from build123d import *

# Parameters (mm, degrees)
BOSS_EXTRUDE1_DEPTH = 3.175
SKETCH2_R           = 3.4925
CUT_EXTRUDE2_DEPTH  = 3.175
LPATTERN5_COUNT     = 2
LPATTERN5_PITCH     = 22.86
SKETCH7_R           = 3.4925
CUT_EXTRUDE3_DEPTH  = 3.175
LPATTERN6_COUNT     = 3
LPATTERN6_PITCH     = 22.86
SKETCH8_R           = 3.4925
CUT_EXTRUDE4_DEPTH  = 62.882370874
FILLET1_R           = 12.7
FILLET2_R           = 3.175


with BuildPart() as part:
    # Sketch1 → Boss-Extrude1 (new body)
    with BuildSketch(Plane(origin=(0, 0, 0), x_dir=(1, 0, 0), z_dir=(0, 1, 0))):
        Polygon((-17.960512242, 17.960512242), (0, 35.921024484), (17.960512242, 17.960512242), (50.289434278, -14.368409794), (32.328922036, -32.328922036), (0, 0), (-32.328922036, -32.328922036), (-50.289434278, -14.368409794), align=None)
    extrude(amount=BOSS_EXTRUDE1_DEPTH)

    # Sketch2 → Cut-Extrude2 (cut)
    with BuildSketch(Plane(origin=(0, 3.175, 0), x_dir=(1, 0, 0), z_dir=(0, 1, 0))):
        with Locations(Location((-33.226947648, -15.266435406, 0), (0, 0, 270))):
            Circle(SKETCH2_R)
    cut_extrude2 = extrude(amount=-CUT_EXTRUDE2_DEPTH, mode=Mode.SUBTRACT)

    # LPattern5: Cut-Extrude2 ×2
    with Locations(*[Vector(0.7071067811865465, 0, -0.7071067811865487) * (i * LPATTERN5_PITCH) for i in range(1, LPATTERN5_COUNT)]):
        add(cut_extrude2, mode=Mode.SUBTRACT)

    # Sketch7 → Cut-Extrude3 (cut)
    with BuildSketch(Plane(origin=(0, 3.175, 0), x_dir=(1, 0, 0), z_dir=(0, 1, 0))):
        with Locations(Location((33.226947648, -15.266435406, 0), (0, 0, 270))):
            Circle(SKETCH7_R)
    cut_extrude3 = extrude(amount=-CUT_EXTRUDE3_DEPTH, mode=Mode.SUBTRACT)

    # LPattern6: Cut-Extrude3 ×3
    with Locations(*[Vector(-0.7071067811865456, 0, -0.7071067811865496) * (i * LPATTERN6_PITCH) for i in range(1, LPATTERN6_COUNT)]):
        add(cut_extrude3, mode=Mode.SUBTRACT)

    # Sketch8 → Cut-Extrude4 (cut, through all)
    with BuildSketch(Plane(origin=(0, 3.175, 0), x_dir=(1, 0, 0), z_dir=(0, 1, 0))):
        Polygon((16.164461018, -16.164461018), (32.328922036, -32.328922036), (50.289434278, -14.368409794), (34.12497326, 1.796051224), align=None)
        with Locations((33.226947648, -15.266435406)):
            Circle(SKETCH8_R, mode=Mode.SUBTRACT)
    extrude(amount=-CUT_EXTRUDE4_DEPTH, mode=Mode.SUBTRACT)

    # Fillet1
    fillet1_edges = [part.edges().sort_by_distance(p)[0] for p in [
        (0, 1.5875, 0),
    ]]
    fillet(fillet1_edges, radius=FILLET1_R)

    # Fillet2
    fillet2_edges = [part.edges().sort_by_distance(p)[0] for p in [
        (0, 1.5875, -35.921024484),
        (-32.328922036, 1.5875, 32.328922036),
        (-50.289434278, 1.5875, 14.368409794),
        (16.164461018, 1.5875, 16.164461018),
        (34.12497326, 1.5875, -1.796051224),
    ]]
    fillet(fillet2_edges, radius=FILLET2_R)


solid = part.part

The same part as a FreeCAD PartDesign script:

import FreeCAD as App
import Part
import Sketcher

V = App.Vector
Q = App.Units.Quantity


def edges_at(feature, points):
    """Names of the edges that pass closest to the given points."""
    edges = feature.Shape.Edges
    near = lambda p: min(range(len(edges)), key=lambda i: edges[i].distToShape(Part.Vertex(*p))[0])
    return sorted({f"Edge{near(p) + 1}" for p in points})


def add_polygon(sketch, points):
    """Adds a closed chain of lines whose ends are joined by coincident constraints."""
    first, n = sketch.GeometryCount, len(points)
    for a, b in zip(points, points[1:] + points[:1]):
        sketch.addGeometry(Part.LineSegment(App.Vector(*a, 0), App.Vector(*b, 0)), False)
    for i in range(n):
        sketch.addConstraint(Sketcher.Constraint("Coincident", first + i, 2, first + (i + 1) % n, 1))

doc = App.newDocument("Part")
body = doc.addObject("PartDesign::Body", "Body")

# Sketch on XZ plane
sketch1 = body.newObject("Sketcher::SketchObject", "Sketch")
sketch1.AttachmentSupport = (doc.getObject("XZ_Plane"), [""])
sketch1.MapMode = "FlatFace"
add_polygon(sketch1, [(0, -36), (-50, 14), (-32, 32), (0, 0), (32, 32), (50, 14)])  # lines 0-5
sketch1.addConstraint([
    Sketcher.Constraint("Coincident", 2, 2, -1, 1),
    Sketcher.Constraint("Symmetric", 1, 2, 3, 2, -2),
    Sketcher.Constraint("Symmetric", 0, 2, 4, 2, -2),
    Sketcher.Constraint("PointOnObject", 5, 2, -2),
    Sketcher.Constraint("Perpendicular", 0, 1),
    Sketcher.Constraint("Perpendicular", 1, 2),
    Sketcher.Constraint("Perpendicular", 2, 3),
    Sketcher.Constraint("Distance", 1, Q("1 in")),
    Sketcher.Constraint("Distance", 0, Q("2.8 in")),
])
pad1 = body.newObject("PartDesign::Pad", "Pad")
pad1.Profile = sketch1
pad1.Length = Q("0.125 in")
pad1.Reversed = True

# Sketch on XZ plane
sketch2 = body.newObject("Sketcher::SketchObject", "Sketch001")
sketch2.AttachmentSupport = (doc.getObject("XZ_Plane"), [""])
sketch2.MapMode = "FlatFace"
sketch2.AttachmentOffset = App.Placement(V(0, 0, -0.125 * 25.4), App.Rotation())
sketch2.addGeometry(Part.Circle(V(-33.2, 15.3, 0), V(0, 0, 1), 3.5), False)
sketch2.addConstraint([
    Sketcher.Constraint("Diameter", 0, Q("0.275 in")),
    Sketcher.Constraint("DistanceX", 0, 3, -1, 1, 33.226948),
    Sketcher.Constraint("DistanceY", -1, 1, 0, 3, 15.266435),
])
pocket1 = body.newObject("PartDesign::Pocket", "Pocket")
pocket1.Profile = sketch2
pocket1.Length = Q("0.125 in")
pocket1.Reversed = True
doc.recompute()

datumline = body.newObject("PartDesign::Line", "DatumLine")
datumline.Placement = App.Placement(V(0, 0, 0), App.Rotation(V(0, 0, 1), V(0.707106781, 0, -0.707106781)))
linearpattern = body.newObject("PartDesign::LinearPattern", "LinearPattern")
linearpattern.Originals = [pocket1]
linearpattern.Direction = (datumline, [""])
linearpattern.Mode = "offset"
linearpattern.Offset = Q("0.9 in")
linearpattern.Occurrences = 2
body.Tip = linearpattern

# Sketch on XZ plane
sketch3 = body.newObject("Sketcher::SketchObject", "Sketch002")
sketch3.AttachmentSupport = (doc.getObject("XZ_Plane"), [""])
sketch3.MapMode = "FlatFace"
sketch3.AttachmentOffset = App.Placement(V(0, 0, -0.125 * 25.4), App.Rotation())
sketch3.addGeometry(Part.Circle(V(33.2, 15.3, 0), V(0, 0, 1), 3.5), False)
sketch3.addConstraint([
    Sketcher.Constraint("Diameter", 0, Q("0.275 in")),
    Sketcher.Constraint("DistanceX", -1, 1, 0, 3, 33.226948),
    Sketcher.Constraint("DistanceY", -1, 1, 0, 3, 15.266435),
])
pocket2 = body.newObject("PartDesign::Pocket", "Pocket001")
pocket2.Profile = sketch3
pocket2.Length = Q("0.125 in")
pocket2.Reversed = True
doc.recompute()

datumline2 = body.newObject("PartDesign::Line", "DatumLine001")
datumline2.Placement = App.Placement(V(0, 0, 0), App.Rotation(V(0, 0, 1), V(-0.707106781, 0, -0.707106781)))
linearpattern2 = body.newObject("PartDesign::LinearPattern", "LinearPattern001")
linearpattern2.Originals = [pocket2]
linearpattern2.Direction = (datumline2, [""])
linearpattern2.Mode = "offset"
linearpattern2.Offset = Q("0.9 in")
linearpattern2.Occurrences = 3
body.Tip = linearpattern2

# Sketch on XZ plane
sketch4 = body.newObject("Sketcher::SketchObject", "Sketch003")
sketch4.AttachmentSupport = (doc.getObject("XZ_Plane"), [""])
sketch4.MapMode = "FlatFace"
sketch4.AttachmentOffset = App.Placement(V(0, 0, -0.125 * 25.4), App.Rotation())
add_polygon(sketch4, [(16.2, 16.2), (32.3, 32.3), (50.3, 14.4), (34.1, -1.8)])  # lines 0-3
sketch4.addGeometry(Part.Circle(V(33.2, 15.3, 0), V(0, 0, 1), 3.5), False)  # 4
sketch4.addConstraint([
    Sketcher.Constraint("Perpendicular", 0, 1),
    Sketcher.Constraint("Perpendicular", 1, 2),
    Sketcher.Constraint("Perpendicular", 2, 3),
    Sketcher.Constraint("Distance", 1, Q("1 in")),
    Sketcher.Constraint("Diameter", 4, Q("0.275 in")),
    Sketcher.Constraint("Angle", 0, Q("45 deg")),
    Sketcher.Constraint("Distance", 0, Q("0.9 in")),
    Sketcher.Constraint("DistanceY", -1, 1, 1, 2, 14.36841),
    Sketcher.Constraint("DistanceX", -1, 1, 3, 2, 16.164461),
    Sketcher.Constraint("DistanceX", -1, 1, 4, 3, 33.226948),
    Sketcher.Constraint("DistanceY", -1, 1, 4, 3, 15.266435),
])
pocket3 = body.newObject("PartDesign::Pocket", "Pocket002")
pocket3.Profile = sketch4
pocket3.Type = "ThroughAll"
pocket3.Reversed = True
doc.recompute()

fillet = body.newObject("PartDesign::Fillet", "Fillet")
fillet.Base = (pocket3, edges_at(pocket3, [(0, 1.587, 0)]))
fillet.Radius = Q("0.5 in")
doc.recompute()

fillet2 = body.newObject("PartDesign::Fillet", "Fillet001")
fillet2.Base = (fillet, edges_at(fillet, [
    (0, 1.587, -35.921),
    (-32.329, 1.587, 32.329),
    (-50.289, 1.587, 14.368),
    (16.164, 1.587, 16.164),
    (34.125, 1.587, -1.796),
]))
fillet2.Radius = Q("0.125 in")

doc.recompute()
